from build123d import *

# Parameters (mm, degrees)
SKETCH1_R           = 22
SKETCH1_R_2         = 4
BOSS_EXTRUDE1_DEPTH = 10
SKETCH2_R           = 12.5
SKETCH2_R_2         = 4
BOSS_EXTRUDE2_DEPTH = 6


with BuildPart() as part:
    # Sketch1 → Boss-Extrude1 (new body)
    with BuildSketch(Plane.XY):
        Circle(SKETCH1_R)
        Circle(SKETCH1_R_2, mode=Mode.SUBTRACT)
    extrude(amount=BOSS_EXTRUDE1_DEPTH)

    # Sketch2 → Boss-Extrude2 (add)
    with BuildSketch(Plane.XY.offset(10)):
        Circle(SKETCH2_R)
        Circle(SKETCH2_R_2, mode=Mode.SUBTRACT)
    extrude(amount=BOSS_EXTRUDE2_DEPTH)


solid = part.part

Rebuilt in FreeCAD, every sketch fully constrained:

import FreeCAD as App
import Part
import Sketcher
from FreeCAD import Vector

doc = App.newDocument("Part")
body = doc.addObject("PartDesign::Body", "Body")

sketch1 = body.newObject("Sketcher::SketchObject", "Sketch")
sketch1.AttachmentSupport = (doc.getObject("XY_Plane"), [""])
sketch1.MapMode = "FlatFace"
sketch1.addGeometry([
    Part.Circle(Vector(0, 0, 0), Vector(0, 0, 1), 22),
    Part.Circle(Vector(0, 0, 0), Vector(0, 0, 1), 4),
], False)
sketch1.addConstraint([
    Sketcher.Constraint("Coincident", 0, 3, -1, 1),
    Sketcher.Constraint("Coincident", 1, 3, -1, 1),
    Sketcher.Constraint("Diameter", 0, 44.0),
    Sketcher.Constraint("Diameter", 1, 8.0),
])
pad1 = body.newObject("PartDesign::Pad", "Pad")
pad1.Profile = sketch1
pad1.Length = 10

sketch2 = body.newObject("Sketcher::SketchObject", "Sketch001")
sketch2.AttachmentSupport = (doc.getObject("XY_Plane"), [""])
sketch2.MapMode = "FlatFace"
sketch2.AttachmentOffset = App.Placement(Vector(0, 0, 10), App.Rotation())
sketch2.addGeometry([
    Part.Circle(Vector(0, 0, 0), Vector(0, 0, 1), 12.5),
    Part.Circle(Vector(0, 0, 0), Vector(0, 0, 1), 4),
], False)
sketch2.addConstraint([
    Sketcher.Constraint("Coincident", 0, 3, -1, 1),
    Sketcher.Constraint("Coincident", 1, 3, -1, 1),
    Sketcher.Constraint("Diameter", 0, 25.0),
    Sketcher.Constraint("Diameter", 1, 8.0),
])
pad2 = body.newObject("PartDesign::Pad", "Pad001")
pad2.Profile = sketch2
pad2.Length = 6

doc.recompute()
